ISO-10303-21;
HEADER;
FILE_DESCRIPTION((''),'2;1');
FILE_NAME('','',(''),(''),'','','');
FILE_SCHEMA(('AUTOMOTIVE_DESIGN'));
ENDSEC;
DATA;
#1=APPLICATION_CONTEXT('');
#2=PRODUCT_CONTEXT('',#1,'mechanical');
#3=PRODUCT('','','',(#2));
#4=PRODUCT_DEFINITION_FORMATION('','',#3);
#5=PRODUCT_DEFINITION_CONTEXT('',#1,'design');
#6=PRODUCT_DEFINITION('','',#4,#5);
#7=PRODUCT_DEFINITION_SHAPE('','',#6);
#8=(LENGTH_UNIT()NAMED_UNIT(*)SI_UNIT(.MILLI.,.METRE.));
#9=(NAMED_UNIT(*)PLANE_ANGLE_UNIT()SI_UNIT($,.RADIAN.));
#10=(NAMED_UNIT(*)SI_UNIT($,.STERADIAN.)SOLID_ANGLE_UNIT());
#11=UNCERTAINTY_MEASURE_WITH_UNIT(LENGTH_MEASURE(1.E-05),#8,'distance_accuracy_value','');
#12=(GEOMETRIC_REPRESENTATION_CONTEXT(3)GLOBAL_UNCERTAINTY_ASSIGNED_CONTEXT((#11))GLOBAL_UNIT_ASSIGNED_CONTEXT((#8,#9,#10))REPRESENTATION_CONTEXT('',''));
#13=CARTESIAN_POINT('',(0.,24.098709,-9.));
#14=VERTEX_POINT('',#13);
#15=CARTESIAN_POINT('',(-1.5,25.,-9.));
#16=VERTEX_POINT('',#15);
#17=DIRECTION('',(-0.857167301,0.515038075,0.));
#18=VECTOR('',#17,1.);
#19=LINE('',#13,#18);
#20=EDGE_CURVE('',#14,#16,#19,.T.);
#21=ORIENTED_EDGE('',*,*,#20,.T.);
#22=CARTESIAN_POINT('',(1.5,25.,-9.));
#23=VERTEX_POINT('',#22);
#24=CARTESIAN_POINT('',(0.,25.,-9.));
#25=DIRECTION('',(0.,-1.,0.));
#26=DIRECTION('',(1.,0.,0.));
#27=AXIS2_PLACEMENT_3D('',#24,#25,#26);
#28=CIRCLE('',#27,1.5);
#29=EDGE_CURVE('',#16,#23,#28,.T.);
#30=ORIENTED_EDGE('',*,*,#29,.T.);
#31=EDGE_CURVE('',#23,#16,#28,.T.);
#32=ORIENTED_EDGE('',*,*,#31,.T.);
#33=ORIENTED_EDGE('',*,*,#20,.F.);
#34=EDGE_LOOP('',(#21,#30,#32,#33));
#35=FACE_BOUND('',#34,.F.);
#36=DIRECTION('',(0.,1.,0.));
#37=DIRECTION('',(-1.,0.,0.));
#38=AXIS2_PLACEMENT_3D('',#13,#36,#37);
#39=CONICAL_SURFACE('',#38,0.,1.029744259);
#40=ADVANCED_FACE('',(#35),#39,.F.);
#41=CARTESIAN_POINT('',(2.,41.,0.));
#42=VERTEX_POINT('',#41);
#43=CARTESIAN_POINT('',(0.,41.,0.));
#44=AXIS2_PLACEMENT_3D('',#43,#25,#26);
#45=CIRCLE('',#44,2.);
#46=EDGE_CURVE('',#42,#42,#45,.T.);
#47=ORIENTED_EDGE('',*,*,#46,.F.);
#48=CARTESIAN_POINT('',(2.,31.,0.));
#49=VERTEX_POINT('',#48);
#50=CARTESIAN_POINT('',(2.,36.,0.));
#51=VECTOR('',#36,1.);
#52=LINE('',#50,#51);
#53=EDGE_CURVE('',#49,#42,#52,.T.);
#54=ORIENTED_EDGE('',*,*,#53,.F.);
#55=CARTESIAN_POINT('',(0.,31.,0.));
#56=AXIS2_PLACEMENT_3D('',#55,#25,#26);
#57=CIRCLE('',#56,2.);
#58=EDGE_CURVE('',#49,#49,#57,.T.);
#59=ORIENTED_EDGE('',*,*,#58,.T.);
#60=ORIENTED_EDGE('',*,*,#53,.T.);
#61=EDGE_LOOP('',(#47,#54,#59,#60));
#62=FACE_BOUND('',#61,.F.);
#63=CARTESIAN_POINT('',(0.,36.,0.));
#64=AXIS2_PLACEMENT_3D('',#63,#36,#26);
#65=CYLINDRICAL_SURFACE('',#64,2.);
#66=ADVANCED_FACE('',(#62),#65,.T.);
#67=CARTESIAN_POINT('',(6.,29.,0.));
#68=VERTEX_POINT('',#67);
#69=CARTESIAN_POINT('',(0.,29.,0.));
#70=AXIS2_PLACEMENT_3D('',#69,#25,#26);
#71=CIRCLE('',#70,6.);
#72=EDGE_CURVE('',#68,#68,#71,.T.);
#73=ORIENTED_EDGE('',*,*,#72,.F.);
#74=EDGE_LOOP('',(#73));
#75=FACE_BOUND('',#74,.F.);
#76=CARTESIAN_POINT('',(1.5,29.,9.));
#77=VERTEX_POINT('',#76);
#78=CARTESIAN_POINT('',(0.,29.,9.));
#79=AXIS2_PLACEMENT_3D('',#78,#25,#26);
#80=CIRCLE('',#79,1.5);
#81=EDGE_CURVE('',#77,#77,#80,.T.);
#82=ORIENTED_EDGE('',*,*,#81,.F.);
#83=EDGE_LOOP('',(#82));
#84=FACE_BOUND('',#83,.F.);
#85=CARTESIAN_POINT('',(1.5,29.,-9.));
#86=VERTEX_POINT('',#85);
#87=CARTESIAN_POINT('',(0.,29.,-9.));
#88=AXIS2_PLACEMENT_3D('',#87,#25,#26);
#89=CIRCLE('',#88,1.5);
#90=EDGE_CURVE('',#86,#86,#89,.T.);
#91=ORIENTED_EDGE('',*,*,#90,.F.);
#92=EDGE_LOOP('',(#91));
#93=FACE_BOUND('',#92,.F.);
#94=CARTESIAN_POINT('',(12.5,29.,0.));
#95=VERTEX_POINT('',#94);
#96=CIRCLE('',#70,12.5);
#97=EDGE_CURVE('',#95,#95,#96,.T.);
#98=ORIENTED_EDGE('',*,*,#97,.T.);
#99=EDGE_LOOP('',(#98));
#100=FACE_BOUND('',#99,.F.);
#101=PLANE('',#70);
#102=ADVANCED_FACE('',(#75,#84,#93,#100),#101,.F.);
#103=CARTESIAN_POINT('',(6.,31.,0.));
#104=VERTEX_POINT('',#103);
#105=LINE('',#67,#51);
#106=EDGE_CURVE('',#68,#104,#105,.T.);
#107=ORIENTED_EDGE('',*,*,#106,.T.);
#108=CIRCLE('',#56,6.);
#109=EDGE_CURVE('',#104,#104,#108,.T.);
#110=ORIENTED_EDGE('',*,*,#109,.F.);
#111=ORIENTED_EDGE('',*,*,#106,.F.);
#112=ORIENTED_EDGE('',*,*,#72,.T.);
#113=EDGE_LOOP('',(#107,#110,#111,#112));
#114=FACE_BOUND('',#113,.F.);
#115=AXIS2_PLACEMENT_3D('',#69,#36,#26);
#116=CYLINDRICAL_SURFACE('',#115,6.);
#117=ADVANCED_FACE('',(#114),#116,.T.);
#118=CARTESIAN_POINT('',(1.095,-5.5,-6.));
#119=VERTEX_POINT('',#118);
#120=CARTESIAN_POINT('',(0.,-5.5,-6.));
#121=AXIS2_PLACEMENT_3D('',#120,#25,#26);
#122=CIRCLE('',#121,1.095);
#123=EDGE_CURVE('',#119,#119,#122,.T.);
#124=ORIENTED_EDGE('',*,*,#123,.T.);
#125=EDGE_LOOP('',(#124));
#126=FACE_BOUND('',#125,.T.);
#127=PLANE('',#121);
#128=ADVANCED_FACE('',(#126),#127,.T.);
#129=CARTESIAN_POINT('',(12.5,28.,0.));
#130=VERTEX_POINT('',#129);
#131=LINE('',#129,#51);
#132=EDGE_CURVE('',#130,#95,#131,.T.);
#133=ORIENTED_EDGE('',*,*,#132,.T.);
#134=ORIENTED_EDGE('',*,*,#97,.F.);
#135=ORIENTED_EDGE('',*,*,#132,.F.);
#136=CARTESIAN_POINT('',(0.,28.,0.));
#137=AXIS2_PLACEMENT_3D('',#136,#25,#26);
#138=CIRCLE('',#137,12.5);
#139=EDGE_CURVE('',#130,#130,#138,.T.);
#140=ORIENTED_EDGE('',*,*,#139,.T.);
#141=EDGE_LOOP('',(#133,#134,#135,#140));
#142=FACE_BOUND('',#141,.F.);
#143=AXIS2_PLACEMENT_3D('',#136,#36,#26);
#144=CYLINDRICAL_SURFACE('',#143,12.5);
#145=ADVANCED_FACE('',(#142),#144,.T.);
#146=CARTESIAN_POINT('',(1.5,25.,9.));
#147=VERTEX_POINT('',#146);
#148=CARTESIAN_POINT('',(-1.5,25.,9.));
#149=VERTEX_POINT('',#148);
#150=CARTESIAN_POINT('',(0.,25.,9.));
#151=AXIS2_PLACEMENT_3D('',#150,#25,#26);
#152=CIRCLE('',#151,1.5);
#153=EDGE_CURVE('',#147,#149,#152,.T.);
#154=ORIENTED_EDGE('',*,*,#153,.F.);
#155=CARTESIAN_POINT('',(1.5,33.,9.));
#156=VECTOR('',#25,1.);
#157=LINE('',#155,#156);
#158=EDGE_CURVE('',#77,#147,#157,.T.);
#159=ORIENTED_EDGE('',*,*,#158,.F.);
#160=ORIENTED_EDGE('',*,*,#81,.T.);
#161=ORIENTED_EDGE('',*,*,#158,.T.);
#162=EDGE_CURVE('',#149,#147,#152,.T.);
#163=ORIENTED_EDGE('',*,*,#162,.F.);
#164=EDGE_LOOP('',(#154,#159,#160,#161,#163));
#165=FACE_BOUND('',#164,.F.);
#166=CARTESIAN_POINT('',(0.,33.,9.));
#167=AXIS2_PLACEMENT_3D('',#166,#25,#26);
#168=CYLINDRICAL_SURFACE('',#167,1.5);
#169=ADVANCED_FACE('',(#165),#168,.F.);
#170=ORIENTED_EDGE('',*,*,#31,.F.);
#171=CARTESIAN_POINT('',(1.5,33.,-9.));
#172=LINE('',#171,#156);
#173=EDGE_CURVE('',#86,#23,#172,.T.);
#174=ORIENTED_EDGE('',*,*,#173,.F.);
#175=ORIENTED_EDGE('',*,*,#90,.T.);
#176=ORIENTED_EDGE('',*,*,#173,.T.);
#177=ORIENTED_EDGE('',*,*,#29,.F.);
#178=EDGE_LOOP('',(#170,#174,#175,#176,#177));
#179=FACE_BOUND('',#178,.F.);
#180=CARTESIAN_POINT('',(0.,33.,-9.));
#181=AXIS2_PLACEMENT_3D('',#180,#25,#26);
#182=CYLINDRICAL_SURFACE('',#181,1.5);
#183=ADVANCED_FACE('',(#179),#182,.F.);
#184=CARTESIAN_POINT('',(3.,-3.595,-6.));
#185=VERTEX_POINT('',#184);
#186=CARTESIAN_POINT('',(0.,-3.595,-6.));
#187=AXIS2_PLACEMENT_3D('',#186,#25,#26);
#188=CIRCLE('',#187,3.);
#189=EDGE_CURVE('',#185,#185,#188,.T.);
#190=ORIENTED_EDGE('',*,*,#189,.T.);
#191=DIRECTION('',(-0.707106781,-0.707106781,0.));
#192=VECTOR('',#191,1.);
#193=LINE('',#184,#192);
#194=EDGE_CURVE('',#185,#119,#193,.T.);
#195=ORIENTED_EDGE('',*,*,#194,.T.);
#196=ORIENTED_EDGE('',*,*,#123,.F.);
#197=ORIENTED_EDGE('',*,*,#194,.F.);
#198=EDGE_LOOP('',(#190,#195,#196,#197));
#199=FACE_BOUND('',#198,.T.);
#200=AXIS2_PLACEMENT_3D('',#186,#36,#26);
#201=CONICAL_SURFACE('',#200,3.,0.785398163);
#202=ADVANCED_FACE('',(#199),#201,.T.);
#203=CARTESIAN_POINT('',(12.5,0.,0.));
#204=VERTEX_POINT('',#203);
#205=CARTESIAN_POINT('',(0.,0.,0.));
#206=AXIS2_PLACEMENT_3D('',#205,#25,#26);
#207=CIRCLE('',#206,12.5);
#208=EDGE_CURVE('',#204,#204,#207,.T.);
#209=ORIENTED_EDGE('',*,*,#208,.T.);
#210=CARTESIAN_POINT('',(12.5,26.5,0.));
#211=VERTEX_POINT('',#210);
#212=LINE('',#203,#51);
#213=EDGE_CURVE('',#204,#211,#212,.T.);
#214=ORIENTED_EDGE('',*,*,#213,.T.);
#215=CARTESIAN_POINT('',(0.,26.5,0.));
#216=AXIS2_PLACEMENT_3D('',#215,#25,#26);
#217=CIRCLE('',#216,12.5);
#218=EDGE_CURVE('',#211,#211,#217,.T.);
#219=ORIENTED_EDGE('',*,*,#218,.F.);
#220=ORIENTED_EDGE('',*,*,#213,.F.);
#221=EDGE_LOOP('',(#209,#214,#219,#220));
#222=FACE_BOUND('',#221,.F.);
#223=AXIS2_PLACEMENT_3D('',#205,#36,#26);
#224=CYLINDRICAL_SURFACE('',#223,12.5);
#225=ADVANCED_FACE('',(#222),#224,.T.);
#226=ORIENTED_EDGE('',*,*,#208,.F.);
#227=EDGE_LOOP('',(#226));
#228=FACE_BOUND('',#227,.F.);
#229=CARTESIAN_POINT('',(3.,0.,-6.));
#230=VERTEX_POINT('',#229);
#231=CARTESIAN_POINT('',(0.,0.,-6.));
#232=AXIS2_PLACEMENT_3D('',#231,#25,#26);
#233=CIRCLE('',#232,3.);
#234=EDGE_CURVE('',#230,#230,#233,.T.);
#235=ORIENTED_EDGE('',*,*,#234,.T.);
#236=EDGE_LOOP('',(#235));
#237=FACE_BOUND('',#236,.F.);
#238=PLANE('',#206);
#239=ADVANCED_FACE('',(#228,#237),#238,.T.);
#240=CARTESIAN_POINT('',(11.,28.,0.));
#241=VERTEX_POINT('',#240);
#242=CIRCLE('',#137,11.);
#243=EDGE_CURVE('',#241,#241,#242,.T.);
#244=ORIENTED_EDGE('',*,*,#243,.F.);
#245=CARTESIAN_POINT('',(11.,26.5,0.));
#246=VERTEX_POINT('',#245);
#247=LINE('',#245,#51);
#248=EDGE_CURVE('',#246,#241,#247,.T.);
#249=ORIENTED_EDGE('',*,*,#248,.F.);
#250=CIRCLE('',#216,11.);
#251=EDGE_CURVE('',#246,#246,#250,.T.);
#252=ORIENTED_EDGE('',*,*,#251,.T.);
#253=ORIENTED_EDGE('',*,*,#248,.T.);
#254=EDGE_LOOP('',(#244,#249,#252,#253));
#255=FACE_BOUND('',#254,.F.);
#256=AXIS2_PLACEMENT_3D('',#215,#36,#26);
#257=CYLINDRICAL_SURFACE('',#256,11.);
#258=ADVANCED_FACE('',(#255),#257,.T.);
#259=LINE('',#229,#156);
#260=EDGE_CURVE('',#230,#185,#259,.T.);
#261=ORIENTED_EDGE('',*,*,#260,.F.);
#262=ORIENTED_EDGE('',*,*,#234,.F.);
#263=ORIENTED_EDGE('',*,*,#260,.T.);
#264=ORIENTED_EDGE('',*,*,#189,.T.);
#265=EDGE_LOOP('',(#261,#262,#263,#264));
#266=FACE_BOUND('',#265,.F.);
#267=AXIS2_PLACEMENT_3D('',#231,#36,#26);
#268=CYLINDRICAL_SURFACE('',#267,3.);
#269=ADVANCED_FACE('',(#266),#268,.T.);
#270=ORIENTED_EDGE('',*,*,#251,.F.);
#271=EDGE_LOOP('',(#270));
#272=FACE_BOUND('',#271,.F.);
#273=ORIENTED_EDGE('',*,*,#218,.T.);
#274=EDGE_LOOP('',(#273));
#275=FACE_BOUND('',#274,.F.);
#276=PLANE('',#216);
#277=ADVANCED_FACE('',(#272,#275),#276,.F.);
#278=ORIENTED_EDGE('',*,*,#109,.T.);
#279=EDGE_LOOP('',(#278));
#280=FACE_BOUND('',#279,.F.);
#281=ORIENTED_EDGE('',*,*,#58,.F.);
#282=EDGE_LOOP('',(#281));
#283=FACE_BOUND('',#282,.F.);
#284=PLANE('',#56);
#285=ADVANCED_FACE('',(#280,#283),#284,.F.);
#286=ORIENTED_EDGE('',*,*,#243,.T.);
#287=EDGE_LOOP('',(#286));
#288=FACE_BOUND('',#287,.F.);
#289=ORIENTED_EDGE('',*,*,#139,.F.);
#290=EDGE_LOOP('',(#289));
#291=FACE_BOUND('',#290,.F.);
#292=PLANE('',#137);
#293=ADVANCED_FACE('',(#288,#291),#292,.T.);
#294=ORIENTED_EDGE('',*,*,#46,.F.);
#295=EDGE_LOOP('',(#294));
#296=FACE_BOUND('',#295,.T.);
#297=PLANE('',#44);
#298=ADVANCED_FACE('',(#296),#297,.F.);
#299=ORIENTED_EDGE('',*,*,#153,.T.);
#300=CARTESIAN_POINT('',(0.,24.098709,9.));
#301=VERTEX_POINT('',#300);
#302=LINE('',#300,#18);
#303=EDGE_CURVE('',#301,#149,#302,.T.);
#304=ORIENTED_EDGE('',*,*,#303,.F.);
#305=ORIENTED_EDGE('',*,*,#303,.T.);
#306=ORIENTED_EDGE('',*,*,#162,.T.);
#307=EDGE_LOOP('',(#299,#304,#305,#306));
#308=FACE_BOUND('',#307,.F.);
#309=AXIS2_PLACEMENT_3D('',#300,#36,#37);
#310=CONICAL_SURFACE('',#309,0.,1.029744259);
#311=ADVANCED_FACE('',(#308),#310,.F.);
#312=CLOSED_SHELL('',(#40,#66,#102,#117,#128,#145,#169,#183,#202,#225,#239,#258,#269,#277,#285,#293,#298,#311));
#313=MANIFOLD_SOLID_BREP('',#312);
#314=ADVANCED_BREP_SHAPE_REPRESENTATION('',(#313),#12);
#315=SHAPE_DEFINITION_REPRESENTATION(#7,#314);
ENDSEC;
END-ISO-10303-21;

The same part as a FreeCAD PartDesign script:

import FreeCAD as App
import Part
import Sketcher

V = App.Vector


def edges_at(feature, points):
    """Names of the edges that pass closest to the given points."""
    edges = feature.Shape.Edges
    near = lambda p: min(range(len(edges)), key=lambda i: edges[i].distToShape(Part.Vertex(*p))[0])
    return sorted({f"Edge{near(p) + 1}" for p in points})

doc = App.newDocument("Part")
body = doc.addObject("PartDesign::Body", "Body")

# Sketch on XY plane
sketch1 = doc.addObject("Sketcher::SketchObject", "Sketch")
body.addObject(sketch1)
sketch1.AttachmentSupport = (doc.XY_Plane, [""])
sketch1.MapMode = "FlatFace"
sketch1.addGeometry([
    Part.LineSegment(V(0, 0, 0), V(12.5, 0, 0)),  # 0
    Part.LineSegment(V(12.5, 0, 0), V(12.5, 26.5, 0)),  # 1
    Part.LineSegment(V(12.5, 26.5, 0), V(11, 26.5, 0)),  # 2
    Part.LineSegment(V(11, 26.5, 0), V(11, 28, 0)),  # 3
    Part.LineSegment(V(11, 28, 0), V(12.5, 28, 0)),  # 4
    Part.LineSegment(V(12.5, 28, 0), V(12.5, 29, 0)),  # 5
    Part.LineSegment(V(12.5, 29, 0), V(6, 29, 0)),  # 6
    Part.LineSegment(V(6, 29, 0), V(6, 31, 0)),  # 7
    Part.LineSegment(V(6, 31, 0), V(2, 31, 0)),  # 8
    Part.LineSegment(V(2, 31, 0), V(2, 41, 0)),  # 9
    Part.LineSegment(V(2, 41, 0), V(0, 41, 0)),  # 10
    Part.LineSegment(V(0, 41, 0), V(0, 0, 0)),  # 11
], False)
sketch1.addConstraint([
    Sketcher.Constraint("Coincident", 0, 2, 1, 1),
    Sketcher.Constraint("Coincident", 1, 2, 2, 1),
    Sketcher.Constraint("Coincident", 2, 2, 3, 1),
    Sketcher.Constraint("Coincident", 3, 2, 4, 1),
    Sketcher.Constraint("Coincident", 4, 2, 5, 1),
    Sketcher.Constraint("Coincident", 5, 2, 6, 1),
    Sketcher.Constraint("Coincident", 6, 2, 7, 1),
    Sketcher.Constraint("Coincident", 7, 2, 8, 1),
    Sketcher.Constraint("Coincident", 8, 2, 9, 1),
    Sketcher.Constraint("Coincident", 9, 2, 10, 1),
    Sketcher.Constraint("Coincident", 10, 2, 11, 1),
    Sketcher.Constraint("Coincident", 11, 2, 0, 1),
    Sketcher.Constraint("Horizontal", 0),
    Sketcher.Constraint("Vertical", 1),
    Sketcher.Constraint("Horizontal", 2),
    Sketcher.Constraint("Vertical", 3),
    Sketcher.Constraint("Horizontal", 4),
    Sketcher.Constraint("Vertical", 5),
    Sketcher.Constraint("Horizontal", 6),
    Sketcher.Constraint("Vertical", 7),
    Sketcher.Constraint("Horizontal", 8),
    Sketcher.Constraint("Vertical", 9),
    Sketcher.Constraint("Horizontal", 10),
    Sketcher.Constraint("Vertical", 11),
    Sketcher.Constraint("Coincident", 11, 2, -1, 1),
    Sketcher.Constraint("Vertical", 1, 2, 4, 2),
    Sketcher.Constraint("Equal", 4, 3),
    Sketcher.Constraint("Equal", 10, 7),
    Sketcher.Constraint("DistanceX", 8, 2, 8, 1, 4.0),
    Sketcher.Constraint("DistanceX", 10, 2, 10, 1, 2.0),
    Sketcher.Constraint("DistanceY", 5, 1, 5, 2, 1.0),
    Sketcher.Constraint("DistanceY", 9, 1, 9, 2, 10.0),
    Sketcher.Constraint("DistanceY", 11, 2, 11, 1, 41.0),
    Sketcher.Constraint("DistanceX", 0, 1, 0, 2, 12.5),
    Sketcher.Constraint("DistanceX", 2, 2, 2, 1, 1.5),
])
revolution = doc.addObject("PartDesign::Revolution", "Revolution")
body.addObject(revolution)
revolution.Profile = sketch1
revolution.ReferenceAxis = (sketch1, ["V_Axis"])
revolution.Angle = 360

# Sketch on XZ plane
sketch2 = doc.addObject("Sketcher::SketchObject", "Sketch001")
body.addObject(sketch2)
sketch2.AttachmentSupport = (doc.XZ_Plane, [""])
sketch2.MapMode = "FlatFace"
sketch2.AttachmentOffset = App.Placement(V(0, 0, -29), App.Rotation())
sketch2.addGeometry([
    Part.Circle(V(0, 9, 0), V(0, 0, 1), 1.5),
    Part.Circle(V(0, -9, 0), V(0, 0, 1), 1.5),
], False)
sketch2.addConstraint([
    Sketcher.Constraint("Equal", 0, 1),
    Sketcher.Constraint("Symmetric", 0, 3, 1, 3, -1, 1),
    Sketcher.Constraint("PointOnObject", 0, 3, -2),
    Sketcher.Constraint("Diameter", 0, 3.0),
    Sketcher.Constraint("DistanceY", -1, 1, 0, 3, 9.0),
])
doc.recompute()
hole = doc.addObject("PartDesign::Hole", "Hole")
body.addObject(hole)
hole.Profile = sketch2
hole.ThreadType = "None"
hole.Diameter = 3
hole.DepthType = "Dimension"
hole.Depth = 4
hole.DrillPoint = "Angled"
hole.DrillPointAngle = 118
hole.Reversed = True

# Sketch on XZ plane
sketch3 = doc.addObject("Sketcher::SketchObject", "Sketch002")
body.addObject(sketch3)
sketch3.AttachmentSupport = (doc.XZ_Plane, [""])
sketch3.MapMode = "FlatFace"
sketch3.addGeometry(Part.Circle(V(0, -6, 0), V(0, 0, 1), 3), False)
sketch3.addConstraint([
    Sketcher.Constraint("PointOnObject", 0, 3, -2),
    Sketcher.Constraint("Diameter", 0, 6.0),
    Sketcher.Constraint("DistanceY", 0, 3, -1, 1, 6.0),
])
pad1 = doc.addObject("PartDesign::Pad", "Pad")
body.addObject(pad1)
pad1.Profile = sketch3
pad1.Length = 5.5
doc.recompute()

chamfer = doc.addObject("PartDesign::Chamfer", "Chamfer")
body.addObject(chamfer)
chamfer.Base = (pad1, edges_at(pad1, [(-3, -5.5, -6)]))
chamfer.Size = 1.905

doc.recompute()
